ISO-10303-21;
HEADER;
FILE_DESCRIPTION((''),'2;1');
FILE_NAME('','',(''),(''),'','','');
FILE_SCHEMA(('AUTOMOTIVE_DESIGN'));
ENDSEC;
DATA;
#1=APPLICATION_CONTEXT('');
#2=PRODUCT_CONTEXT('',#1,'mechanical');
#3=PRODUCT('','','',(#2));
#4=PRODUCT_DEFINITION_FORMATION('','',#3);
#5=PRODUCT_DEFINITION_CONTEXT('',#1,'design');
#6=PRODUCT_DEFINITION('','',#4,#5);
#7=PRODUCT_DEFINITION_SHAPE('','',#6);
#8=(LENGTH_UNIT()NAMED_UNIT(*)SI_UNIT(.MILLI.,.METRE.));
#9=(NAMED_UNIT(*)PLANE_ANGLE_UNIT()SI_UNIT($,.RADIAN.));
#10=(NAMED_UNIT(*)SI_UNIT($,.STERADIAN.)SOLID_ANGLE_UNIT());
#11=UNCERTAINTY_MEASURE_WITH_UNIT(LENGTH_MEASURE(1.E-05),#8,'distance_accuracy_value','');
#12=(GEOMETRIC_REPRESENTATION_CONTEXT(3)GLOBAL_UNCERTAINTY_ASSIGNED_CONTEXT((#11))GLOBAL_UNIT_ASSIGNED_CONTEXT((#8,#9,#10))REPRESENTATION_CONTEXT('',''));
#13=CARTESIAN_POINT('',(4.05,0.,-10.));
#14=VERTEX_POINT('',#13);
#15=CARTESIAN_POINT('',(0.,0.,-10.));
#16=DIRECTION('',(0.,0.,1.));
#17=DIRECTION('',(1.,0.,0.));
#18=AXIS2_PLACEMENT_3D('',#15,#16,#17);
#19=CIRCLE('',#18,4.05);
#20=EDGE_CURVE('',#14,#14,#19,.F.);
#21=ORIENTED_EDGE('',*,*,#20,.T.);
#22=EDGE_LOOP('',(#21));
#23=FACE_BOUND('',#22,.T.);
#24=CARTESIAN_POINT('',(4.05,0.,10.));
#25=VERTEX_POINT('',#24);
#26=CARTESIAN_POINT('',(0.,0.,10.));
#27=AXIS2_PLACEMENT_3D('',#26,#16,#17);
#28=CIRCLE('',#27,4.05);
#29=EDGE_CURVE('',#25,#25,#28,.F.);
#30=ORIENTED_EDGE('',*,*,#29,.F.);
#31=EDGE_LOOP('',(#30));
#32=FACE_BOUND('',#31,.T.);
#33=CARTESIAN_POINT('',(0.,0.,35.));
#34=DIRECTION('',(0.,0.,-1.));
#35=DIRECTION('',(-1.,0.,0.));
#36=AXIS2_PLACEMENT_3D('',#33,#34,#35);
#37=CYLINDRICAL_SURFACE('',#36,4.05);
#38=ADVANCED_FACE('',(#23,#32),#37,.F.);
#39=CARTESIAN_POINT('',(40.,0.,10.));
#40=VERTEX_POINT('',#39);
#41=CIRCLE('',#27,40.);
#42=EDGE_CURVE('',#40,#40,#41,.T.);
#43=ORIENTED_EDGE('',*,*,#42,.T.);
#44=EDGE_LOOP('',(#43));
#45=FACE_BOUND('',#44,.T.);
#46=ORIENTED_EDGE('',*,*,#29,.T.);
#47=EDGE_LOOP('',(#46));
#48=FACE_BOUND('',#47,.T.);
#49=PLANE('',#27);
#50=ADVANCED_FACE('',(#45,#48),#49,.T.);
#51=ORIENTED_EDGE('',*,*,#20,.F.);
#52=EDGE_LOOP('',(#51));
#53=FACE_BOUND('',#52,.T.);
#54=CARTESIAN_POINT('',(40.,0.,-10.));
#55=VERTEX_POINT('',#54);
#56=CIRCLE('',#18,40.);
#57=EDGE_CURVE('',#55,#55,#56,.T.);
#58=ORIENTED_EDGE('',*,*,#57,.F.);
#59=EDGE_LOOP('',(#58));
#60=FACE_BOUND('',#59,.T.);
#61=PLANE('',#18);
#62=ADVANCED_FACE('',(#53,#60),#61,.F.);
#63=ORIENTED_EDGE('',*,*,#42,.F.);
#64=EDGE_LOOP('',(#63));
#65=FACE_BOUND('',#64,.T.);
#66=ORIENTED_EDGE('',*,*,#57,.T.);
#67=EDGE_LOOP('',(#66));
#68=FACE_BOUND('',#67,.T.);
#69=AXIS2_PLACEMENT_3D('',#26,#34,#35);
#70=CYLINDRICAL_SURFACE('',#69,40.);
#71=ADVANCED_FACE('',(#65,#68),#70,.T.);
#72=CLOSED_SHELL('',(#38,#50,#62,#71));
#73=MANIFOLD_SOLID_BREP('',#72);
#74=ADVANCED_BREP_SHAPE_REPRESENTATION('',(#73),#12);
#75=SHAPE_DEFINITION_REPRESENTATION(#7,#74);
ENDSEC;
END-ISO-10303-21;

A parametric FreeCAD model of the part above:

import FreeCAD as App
import Part
import Sketcher
from FreeCAD import Vector

doc = App.newDocument("Part")
body = doc.addObject("PartDesign::Body", "Body")

sketch1 = body.newObject("Sketcher::SketchObject", "Sketch")
sketch1.AttachmentSupport = (doc.getObject("XY_Plane"), [""])
sketch1.MapMode = "FlatFace"
sketch1.addGeometry(Part.Circle(Vector(0, 0, 0), Vector(0, 0, 1), 40), False)
sketch1.addConstraint([
    Sketcher.Constraint("Coincident", 0, 3, -1, 1),
    Sketcher.Constraint("Diameter", 0, 80.0),
])
pad1 = body.newObject("PartDesign::Pad", "Pad")
pad1.Profile = sketch1
pad1.Length = 20
pad1.Midplane = True

sketch2 = body.newObject("Sketcher::SketchObject", "Sketch001")
sketch2.AttachmentSupport = (doc.getObject("XY_Plane"), [""])
sketch2.MapMode = "FlatFace"
sketch2.AttachmentOffset = App.Placement(Vector(0, 0, 10), App.Rotation())
sketch2.addGeometry(Part.Circle(Vector(0, 0, 0), Vector(0, 0, 1), 4.05), False)
sketch2.addConstraint([
    Sketcher.Constraint("Coincident", 0, 3, -1, 1),
    Sketcher.Constraint("Diameter", 0, 8.1),
])
pocket1 = body.newObject("PartDesign::Pocket", "Pocket")
pocket1.Profile = sketch2
pocket1.Type = "ThroughAll"
pocket1.Midplane = True

doc.recompute()
